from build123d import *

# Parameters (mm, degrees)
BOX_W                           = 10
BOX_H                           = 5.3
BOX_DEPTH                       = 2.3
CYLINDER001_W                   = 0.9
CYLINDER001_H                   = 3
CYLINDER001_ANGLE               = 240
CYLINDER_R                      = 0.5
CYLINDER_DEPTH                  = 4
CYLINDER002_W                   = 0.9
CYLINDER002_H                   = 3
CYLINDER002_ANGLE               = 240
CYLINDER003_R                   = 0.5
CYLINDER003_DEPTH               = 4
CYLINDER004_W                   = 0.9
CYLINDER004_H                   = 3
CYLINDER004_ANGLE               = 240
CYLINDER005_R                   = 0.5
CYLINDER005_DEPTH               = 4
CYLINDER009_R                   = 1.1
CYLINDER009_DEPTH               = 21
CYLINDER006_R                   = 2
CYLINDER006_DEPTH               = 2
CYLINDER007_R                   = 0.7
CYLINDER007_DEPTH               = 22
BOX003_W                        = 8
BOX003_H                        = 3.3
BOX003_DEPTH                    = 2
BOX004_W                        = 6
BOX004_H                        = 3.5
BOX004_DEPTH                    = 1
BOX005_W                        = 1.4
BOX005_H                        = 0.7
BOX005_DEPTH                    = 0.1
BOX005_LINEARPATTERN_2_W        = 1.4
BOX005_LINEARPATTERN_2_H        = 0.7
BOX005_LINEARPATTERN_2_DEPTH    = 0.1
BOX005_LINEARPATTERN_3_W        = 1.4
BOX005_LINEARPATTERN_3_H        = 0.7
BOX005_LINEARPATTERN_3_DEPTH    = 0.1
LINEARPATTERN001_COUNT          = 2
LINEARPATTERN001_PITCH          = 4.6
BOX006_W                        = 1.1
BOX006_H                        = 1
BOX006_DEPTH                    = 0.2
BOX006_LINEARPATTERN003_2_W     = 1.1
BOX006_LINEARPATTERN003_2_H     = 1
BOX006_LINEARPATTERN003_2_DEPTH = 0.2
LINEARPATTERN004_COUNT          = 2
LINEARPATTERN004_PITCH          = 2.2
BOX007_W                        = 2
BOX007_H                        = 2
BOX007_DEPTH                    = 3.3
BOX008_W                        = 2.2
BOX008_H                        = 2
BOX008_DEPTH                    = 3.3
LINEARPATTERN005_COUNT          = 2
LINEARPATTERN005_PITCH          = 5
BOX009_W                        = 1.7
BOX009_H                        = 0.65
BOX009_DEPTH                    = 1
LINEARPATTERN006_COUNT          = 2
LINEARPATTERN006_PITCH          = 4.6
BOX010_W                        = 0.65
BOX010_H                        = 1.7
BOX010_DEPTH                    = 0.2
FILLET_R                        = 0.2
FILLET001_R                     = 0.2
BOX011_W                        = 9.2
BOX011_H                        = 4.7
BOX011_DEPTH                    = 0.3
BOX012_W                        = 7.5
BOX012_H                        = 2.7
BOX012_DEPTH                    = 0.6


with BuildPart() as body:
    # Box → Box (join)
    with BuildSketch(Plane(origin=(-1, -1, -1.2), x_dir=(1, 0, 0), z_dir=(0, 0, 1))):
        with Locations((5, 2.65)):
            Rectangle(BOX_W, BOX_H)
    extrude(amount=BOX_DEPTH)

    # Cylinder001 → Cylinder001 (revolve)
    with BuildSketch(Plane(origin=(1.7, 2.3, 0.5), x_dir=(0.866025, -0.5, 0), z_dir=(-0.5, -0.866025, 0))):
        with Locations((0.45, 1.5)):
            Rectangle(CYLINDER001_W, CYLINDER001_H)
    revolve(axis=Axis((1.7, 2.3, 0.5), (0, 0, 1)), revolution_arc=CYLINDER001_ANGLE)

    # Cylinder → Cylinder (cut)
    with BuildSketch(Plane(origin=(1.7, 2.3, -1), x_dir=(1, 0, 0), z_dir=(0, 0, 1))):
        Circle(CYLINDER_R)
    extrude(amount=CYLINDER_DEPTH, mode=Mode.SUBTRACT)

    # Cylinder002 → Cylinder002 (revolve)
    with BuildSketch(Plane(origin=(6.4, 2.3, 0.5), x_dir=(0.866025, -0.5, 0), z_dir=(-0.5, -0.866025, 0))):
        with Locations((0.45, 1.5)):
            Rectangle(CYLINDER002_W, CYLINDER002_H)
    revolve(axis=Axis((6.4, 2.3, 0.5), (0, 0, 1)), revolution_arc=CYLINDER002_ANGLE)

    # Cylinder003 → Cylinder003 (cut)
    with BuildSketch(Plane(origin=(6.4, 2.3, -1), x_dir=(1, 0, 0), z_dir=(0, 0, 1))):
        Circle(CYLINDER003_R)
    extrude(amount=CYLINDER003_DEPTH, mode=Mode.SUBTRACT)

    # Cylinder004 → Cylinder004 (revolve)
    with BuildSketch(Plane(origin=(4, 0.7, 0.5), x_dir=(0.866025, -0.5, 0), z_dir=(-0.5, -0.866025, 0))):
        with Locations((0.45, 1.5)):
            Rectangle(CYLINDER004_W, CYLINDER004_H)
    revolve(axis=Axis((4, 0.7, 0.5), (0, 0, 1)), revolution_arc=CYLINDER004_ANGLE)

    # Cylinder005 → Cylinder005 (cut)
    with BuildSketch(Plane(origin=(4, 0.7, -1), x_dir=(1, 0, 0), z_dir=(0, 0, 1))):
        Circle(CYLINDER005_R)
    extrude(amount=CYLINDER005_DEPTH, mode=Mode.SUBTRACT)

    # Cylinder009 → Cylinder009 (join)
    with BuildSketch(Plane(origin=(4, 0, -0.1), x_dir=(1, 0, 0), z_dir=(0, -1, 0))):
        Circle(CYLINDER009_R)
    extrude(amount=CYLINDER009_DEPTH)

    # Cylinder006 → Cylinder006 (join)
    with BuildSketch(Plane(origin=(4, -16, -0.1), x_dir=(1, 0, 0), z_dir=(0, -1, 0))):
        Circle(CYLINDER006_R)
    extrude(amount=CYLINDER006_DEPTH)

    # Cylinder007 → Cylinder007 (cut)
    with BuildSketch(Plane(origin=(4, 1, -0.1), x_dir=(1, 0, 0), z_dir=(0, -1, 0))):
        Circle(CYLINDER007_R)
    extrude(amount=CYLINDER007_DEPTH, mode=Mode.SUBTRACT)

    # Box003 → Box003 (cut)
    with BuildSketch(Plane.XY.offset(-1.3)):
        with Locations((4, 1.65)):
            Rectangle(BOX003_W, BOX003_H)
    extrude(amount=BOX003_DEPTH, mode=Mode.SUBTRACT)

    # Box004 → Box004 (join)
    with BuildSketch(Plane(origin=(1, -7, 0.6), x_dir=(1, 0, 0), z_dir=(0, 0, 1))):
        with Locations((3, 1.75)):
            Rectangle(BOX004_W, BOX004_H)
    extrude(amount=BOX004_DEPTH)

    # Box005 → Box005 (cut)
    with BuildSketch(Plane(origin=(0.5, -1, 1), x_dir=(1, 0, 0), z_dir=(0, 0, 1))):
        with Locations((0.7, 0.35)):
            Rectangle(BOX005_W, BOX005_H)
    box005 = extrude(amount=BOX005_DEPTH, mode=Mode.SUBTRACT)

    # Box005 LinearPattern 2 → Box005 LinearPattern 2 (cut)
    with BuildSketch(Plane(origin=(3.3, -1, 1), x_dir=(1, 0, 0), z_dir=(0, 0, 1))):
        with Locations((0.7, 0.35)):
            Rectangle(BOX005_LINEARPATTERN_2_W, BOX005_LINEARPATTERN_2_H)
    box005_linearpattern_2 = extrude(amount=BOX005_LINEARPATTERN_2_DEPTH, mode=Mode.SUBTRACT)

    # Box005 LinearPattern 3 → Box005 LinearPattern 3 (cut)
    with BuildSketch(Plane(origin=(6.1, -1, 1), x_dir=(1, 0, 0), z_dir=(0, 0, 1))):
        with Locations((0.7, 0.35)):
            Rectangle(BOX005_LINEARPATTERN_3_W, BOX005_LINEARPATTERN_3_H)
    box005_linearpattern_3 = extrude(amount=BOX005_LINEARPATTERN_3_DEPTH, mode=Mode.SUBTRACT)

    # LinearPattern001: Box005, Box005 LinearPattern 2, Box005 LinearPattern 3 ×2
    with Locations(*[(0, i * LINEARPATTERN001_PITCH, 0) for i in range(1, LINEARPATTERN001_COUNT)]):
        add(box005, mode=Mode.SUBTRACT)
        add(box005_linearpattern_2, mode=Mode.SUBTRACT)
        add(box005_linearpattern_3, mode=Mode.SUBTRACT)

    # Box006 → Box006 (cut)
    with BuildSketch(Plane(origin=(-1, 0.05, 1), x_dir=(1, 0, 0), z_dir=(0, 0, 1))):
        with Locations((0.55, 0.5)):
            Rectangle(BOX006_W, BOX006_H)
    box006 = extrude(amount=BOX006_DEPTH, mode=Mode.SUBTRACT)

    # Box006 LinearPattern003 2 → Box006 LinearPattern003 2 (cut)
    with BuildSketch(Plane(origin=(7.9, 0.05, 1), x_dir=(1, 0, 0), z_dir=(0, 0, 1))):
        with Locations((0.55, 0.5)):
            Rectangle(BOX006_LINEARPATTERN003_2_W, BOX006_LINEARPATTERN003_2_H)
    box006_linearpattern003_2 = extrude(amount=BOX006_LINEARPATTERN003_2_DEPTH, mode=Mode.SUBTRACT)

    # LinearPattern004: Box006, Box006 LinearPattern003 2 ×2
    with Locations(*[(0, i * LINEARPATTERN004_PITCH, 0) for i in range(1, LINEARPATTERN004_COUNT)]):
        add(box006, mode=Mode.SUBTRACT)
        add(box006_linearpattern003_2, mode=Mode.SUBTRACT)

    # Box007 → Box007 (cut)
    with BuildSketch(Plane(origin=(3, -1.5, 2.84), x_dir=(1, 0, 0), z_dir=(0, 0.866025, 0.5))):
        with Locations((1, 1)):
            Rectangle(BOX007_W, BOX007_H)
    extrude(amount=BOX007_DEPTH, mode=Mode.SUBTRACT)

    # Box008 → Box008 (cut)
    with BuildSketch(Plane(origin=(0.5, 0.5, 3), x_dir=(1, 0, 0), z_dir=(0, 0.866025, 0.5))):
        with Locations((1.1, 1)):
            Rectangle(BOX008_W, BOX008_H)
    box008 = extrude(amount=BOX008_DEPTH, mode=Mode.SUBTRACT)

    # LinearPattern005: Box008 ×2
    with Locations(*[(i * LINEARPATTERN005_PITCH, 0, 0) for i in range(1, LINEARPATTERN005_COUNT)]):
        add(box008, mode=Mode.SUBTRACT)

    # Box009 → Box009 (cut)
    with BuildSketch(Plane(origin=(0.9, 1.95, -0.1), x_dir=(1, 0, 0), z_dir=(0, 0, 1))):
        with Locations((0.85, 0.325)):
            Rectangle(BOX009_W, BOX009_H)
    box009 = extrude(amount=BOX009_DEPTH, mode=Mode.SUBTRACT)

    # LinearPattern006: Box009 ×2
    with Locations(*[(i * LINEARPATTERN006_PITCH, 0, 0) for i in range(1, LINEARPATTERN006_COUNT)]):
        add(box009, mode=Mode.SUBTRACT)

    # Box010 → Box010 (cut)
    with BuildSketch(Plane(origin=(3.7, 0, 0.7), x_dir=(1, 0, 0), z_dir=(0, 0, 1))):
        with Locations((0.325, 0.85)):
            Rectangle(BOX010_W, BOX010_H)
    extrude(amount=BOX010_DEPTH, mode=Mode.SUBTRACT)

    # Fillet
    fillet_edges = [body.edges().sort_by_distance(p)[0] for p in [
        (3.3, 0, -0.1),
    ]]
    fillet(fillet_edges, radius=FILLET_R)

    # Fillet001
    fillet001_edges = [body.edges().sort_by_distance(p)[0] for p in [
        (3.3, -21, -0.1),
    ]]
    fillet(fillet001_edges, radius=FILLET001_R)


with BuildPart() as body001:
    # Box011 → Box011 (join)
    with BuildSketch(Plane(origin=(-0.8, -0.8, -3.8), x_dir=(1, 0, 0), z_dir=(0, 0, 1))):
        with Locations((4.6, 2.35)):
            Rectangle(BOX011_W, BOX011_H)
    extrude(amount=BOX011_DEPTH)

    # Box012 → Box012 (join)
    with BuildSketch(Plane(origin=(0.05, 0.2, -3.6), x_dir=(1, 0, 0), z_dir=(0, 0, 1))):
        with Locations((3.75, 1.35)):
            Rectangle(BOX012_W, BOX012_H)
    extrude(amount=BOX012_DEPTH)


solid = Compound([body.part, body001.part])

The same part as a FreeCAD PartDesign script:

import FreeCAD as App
import Part
import Sketcher
Q = App.Units.Quantity


def edges_at(feature, points):
    """Names of the edges that pass closest to the given points."""
    edges = feature.Shape.Edges
    near = lambda p: min(range(len(edges)), key=lambda i: edges[i].distToShape(Part.Vertex(*p))[0])
    return sorted({f"Edge{near(p) + 1}" for p in points})

doc = App.newDocument("Part")
body = doc.addObject("PartDesign::Body", "Body")

sketch1 = doc.addObject("Sketcher::SketchObject", "Sketch")
body.addObject(sketch1)
sketch1.AttachmentSupport = (doc.XY_Plane, [""])
sketch1.MapMode = "FlatFace"
sketch1.AttachmentOffset = App.Placement(App.Vector(0, 0, -1.2), App.Rotation())
sketch1.addGeometry(Part.LineSegment(App.Vector(-1, 4, 0), App.Vector(-1, -1, 0)), False)
sketch1.addGeometry(Part.LineSegment(App.Vector(-1, -1, 0), App.Vector(9, -1, 0)), False)
sketch1.addGeometry(Part.LineSegment(App.Vector(9, -1, 0), App.Vector(9, 4, 0)), False)
sketch1.addGeometry(Part.LineSegment(App.Vector(9, 4, 0), App.Vector(-1, 4, 0)), False)
sketch1.addConstraint(Sketcher.Constraint("Coincident", 0, 2, 1, 1))
sketch1.addConstraint(Sketcher.Constraint("Coincident", 1, 2, 2, 1))
sketch1.addConstraint(Sketcher.Constraint("Coincident", 2, 2, 3, 1))
sketch1.addConstraint(Sketcher.Constraint("Coincident", 3, 2, 0, 1))
sketch1.addConstraint(Sketcher.Constraint("Vertical", 0))
sketch1.addConstraint(Sketcher.Constraint("Horizontal", 1))
sketch1.addConstraint(Sketcher.Constraint("Vertical", 2))
sketch1.addConstraint(Sketcher.Constraint("Horizontal", 3))
sketch1.addConstraint(Sketcher.Constraint("DistanceX", 1, 1, 1, 2, Q("10 mm")))
sketch1.addConstraint(Sketcher.Constraint("DistanceY", 0, 2, 0, 1, Q("5.3 mm")))
sketch1.addConstraint(Sketcher.Constraint("DistanceX", 0, 2, -1, 1, Q("1 mm")))
sketch1.addConstraint(Sketcher.Constraint("DistanceY", 0, 2, -1, 1, Q("1 mm")))
pad1 = doc.addObject("PartDesign::Pad", "Pad")
body.addObject(pad1)
pad1.Profile = sketch1
pad1.Length = 2.3

sketch2 = doc.addObject("Sketcher::SketchObject", "Sketch001")
body.addObject(sketch2)
sketch2.Placement = App.Placement(App.Vector(1.7, 2.3, 0.5), App.Rotation(App.Vector(0.866025303, -0.500000175, 0), App.Vector(0, 0, 1), App.Vector(-0.500000175, -0.866025303, 0), "ZXY"))
sketch2.addGeometry(Part.LineSegment(App.Vector(0, 3, 0), App.Vector(0, 0, 0)), False)
sketch2.addGeometry(Part.LineSegment(App.Vector(0, 0, 0), App.Vector(0.9, 0, 0)), False)
sketch2.addGeometry(Part.LineSegment(App.Vector(0.9, 0, 0), App.Vector(0.9, 3, 0)), False)
sketch2.addGeometry(Part.LineSegment(App.Vector(0.9, 3, 0), App.Vector(0, 3, 0)), False)
sketch2.addConstraint(Sketcher.Constraint("Coincident", 0, 2, 1, 1))
sketch2.addConstraint(Sketcher.Constraint("Coincident", 1, 2, 2, 1))
sketch2.addConstraint(Sketcher.Constraint("Coincident", 2, 2, 3, 1))
sketch2.addConstraint(Sketcher.Constraint("Coincident", 3, 2, 0, 1))
sketch2.addConstraint(Sketcher.Constraint("Vertical", 0))
sketch2.addConstraint(Sketcher.Constraint("Horizontal", 1))
sketch2.addConstraint(Sketcher.Constraint("Vertical", 2))
sketch2.addConstraint(Sketcher.Constraint("Horizontal", 3))
sketch2.addConstraint(Sketcher.Constraint("Coincident", 0, 2, -1, 1))
sketch2.addConstraint(Sketcher.Constraint("DistanceY", 0, 2, 0, 1, Q("3 mm")))
sketch2.addConstraint(Sketcher.Constraint("DistanceX", 1, 1, 1, 2, Q("0.9 mm")))
revolution = doc.addObject("PartDesign::Revolution", "Revolution")
body.addObject(revolution)
revolution.Profile = sketch2
revolution.ReferenceAxis = (sketch2, ["V_Axis"])
revolution.Angle = 240

sketch3 = doc.addObject("Sketcher::SketchObject", "Sketch002")
body.addObject(sketch3)
sketch3.AttachmentSupport = (doc.XY_Plane, [""])
sketch3.MapMode = "FlatFace"
sketch3.AttachmentOffset = App.Placement(App.Vector(0, 0, -1), App.Rotation())
sketch3.addGeometry(Part.Circle(App.Vector(1.7, 2.3, 0), App.Vector(0, 0, 1), 0.5), False)
sketch3.addConstraint(Sketcher.Constraint("Diameter", 0, Q("1 mm")))
sketch3.addConstraint(Sketcher.Constraint("DistanceX", -1, 1, 0, 3, Q("1.7 mm")))
sketch3.addConstraint(Sketcher.Constraint("DistanceY", -1, 1, 0, 3, Q("2.3 mm")))
pocket1 = doc.addObject("PartDesign::Pocket", "Pocket")
body.addObject(pocket1)
pocket1.Profile = sketch3
pocket1.Length = 4
pocket1.Reversed = True

sketch4 = doc.addObject("Sketcher::SketchObject", "Sketch003")
body.addObject(sketch4)
sketch4.Placement = App.Placement(App.Vector(6.4, 2.3, 0.5), App.Rotation(App.Vector(0.866025303, -0.500000175, 0), App.Vector(0, 0, 1), App.Vector(-0.500000175, -0.866025303, 0), "ZXY"))
sketch4.addGeometry(Part.LineSegment(App.Vector(0, 3, 0), App.Vector(0, 0, 0)), False)
sketch4.addGeometry(Part.LineSegment(App.Vector(0, 0, 0), App.Vector(0.9, 0, 0)), False)
sketch4.addGeometry(Part.LineSegment(App.Vector(0.9, 0, 0), App.Vector(0.9, 3, 0)), False)
sketch4.addGeometry(Part.LineSegment(App.Vector(0.9, 3, 0), App.Vector(0, 3, 0)), False)
sketch4.addConstraint(Sketcher.Constraint("Coincident", 0, 2, 1, 1))
sketch4.addConstraint(Sketcher.Constraint("Coincident", 1, 2, 2, 1))
sketch4.addConstraint(Sketcher.Constraint("Coincident", 2, 2, 3, 1))
sketch4.addConstraint(Sketcher.Constraint("Coincident", 3, 2, 0, 1))
sketch4.addConstraint(Sketcher.Constraint("Vertical", 0))
sketch4.addConstraint(Sketcher.Constraint("Horizontal", 1))
sketch4.addConstraint(Sketcher.Constraint("Vertical", 2))
sketch4.addConstraint(Sketcher.Constraint("Horizontal", 3))
sketch4.addConstraint(Sketcher.Constraint("Coincident", 0, 2, -1, 1))
sketch4.addConstraint(Sketcher.Constraint("DistanceY", 0, 2, 0, 1, Q("3 mm")))
sketch4.addConstraint(Sketcher.Constraint("DistanceX", 1, 1, 1, 2, Q("0.9 mm")))
revolution2 = doc.addObject("PartDesign::Revolution", "Revolution001")
body.addObject(revolution2)
revolution2.Profile = sketch4
revolution2.ReferenceAxis = (sketch4, ["V_Axis"])
revolution2.Angle = 240

sketch5 = doc.addObject("Sketcher::SketchObject", "Sketch004")
body.addObject(sketch5)
sketch5.AttachmentSupport = (doc.XY_Plane, [""])
sketch5.MapMode = "FlatFace"
sketch5.AttachmentOffset = App.Placement(App.Vector(0, 0, -1), App.Rotation())
sketch5.addGeometry(Part.Circle(App.Vector(6.4, 2.3, 0), App.Vector(0, 0, 1), 0.5), False)
sketch5.addConstraint(Sketcher.Constraint("Diameter", 0, Q("1 mm")))
sketch5.addConstraint(Sketcher.Constraint("DistanceX", -1, 1, 0, 3, Q("6.4 mm")))
sketch5.addConstraint(Sketcher.Constraint("DistanceY", -1, 1, 0, 3, Q("2.3 mm")))
pocket2 = doc.addObject("PartDesign::Pocket", "Pocket001")
body.addObject(pocket2)
pocket2.Profile = sketch5
pocket2.Length = 4
pocket2.Reversed = True

sketch6 = doc.addObject("Sketcher::SketchObject", "Sketch005")
body.addObject(sketch6)
sketch6.Placement = App.Placement(App.Vector(4, 0.7, 0.5), App.Rotation(App.Vector(0.866025303, -0.500000175, 0), App.Vector(0, 0, 1), App.Vector(-0.500000175, -0.866025303, 0), "ZXY"))
sketch6.addGeometry(Part.LineSegment(App.Vector(0, 3, 0), App.Vector(0, 0, 0)), False)
sketch6.addGeometry(Part.LineSegment(App.Vector(0, 0, 0), App.Vector(0.9, 0, 0)), False)
sketch6.addGeometry(Part.LineSegment(App.Vector(0.9, 0, 0), App.Vector(0.9, 3, 0)), False)
sketch6.addGeometry(Part.LineSegment(App.Vector(0.9, 3, 0), App.Vector(0, 3, 0)), False)
sketch6.addConstraint(Sketcher.Constraint("Coincident", 0, 2, 1, 1))
sketch6.addConstraint(Sketcher.Constraint("Coincident", 1, 2, 2, 1))
sketch6.addConstraint(Sketcher.Constraint("Coincident", 2, 2, 3, 1))
sketch6.addConstraint(Sketcher.Constraint("Coincident", 3, 2, 0, 1))
sketch6.addConstraint(Sketcher.Constraint("Vertical", 0))
sketch6.addConstraint(Sketcher.Constraint("Horizontal", 1))
sketch6.addConstraint(Sketcher.Constraint("Vertical", 2))
sketch6.addConstraint(Sketcher.Constraint("Horizontal", 3))
sketch6.addConstraint(Sketcher.Constraint("Coincident", 0, 2, -1, 1))
sketch6.addConstraint(Sketcher.Constraint("DistanceY", 0, 2, 0, 1, Q("3 mm")))
sketch6.addConstraint(Sketcher.Constraint("DistanceX", 1, 1, 1, 2, Q("0.9 mm")))
revolution3 = doc.addObject("PartDesign::Revolution", "Revolution002")
body.addObject(revolution3)
revolution3.Profile = sketch6
revolution3.ReferenceAxis = (sketch6, ["V_Axis"])
revolution3.Angle = 240

sketch7 = doc.addObject("Sketcher::SketchObject", "Sketch006")
body.addObject(sketch7)
sketch7.AttachmentSupport = (doc.XY_Plane, [""])
sketch7.MapMode = "FlatFace"
sketch7.AttachmentOffset = App.Placement(App.Vector(0, 0, -1), App.Rotation())
sketch7.addGeometry(Part.Circle(App.Vector(4, 0.7, 0), App.Vector(0, 0, 1), 0.5), False)
sketch7.addConstraint(Sketcher.Constraint("Diameter", 0, Q("1 mm")))
sketch7.addConstraint(Sketcher.Constraint("DistanceX", -1, 1, 0, 3, Q("4 mm")))
sketch7.addConstraint(Sketcher.Constraint("DistanceY", -1, 1, 0, 3, Q("0.7 mm")))
pocket3 = doc.addObject("PartDesign::Pocket", "Pocket002")
body.addObject(pocket3)
pocket3.Profile = sketch7
pocket3.Length = 4
pocket3.Reversed = True

sketch8 = doc.addObject("Sketcher::SketchObject", "Sketch007")
body.addObject(sketch8)
sketch8.AttachmentSupport = (doc.XZ_Plane, [""])
sketch8.MapMode = "FlatFace"
sketch8.addGeometry(Part.Circle(App.Vector(4, -0.1, 0), App.Vector(0, 0, 1), 1.1), False)
sketch8.addConstraint(Sketcher.Constraint("Diameter", 0, Q("2.2 mm")))
sketch8.addConstraint(Sketcher.Constraint("DistanceX", -1, 1, 0, 3, Q("4 mm")))
sketch8.addConstraint(Sketcher.Constraint("DistanceY", 0, 3, -1, 1, Q("0.1 mm")))
pad2 = doc.addObject("PartDesign::Pad", "Pad001")
body.addObject(pad2)
pad2.Profile = sketch8
pad2.Length = 21

sketch9 = doc.addObject("Sketcher::SketchObject", "Sketch008")
body.addObject(sketch9)
sketch9.AttachmentSupport = (doc.XZ_Plane, [""])
sketch9.MapMode = "FlatFace"
sketch9.AttachmentOffset = App.Placement(App.Vector(0, 0, 16), App.Rotation())
sketch9.addGeometry(Part.Circle(App.Vector(4, -0.1, 0), App.Vector(0, 0, 1), 2), False)
sketch9.addConstraint(Sketcher.Constraint("Diameter", 0, Q("4 mm")))
sketch9.addConstraint(Sketcher.Constraint("DistanceX", -1, 1, 0, 3, Q("4 mm")))
sketch9.addConstraint(Sketcher.Constraint("DistanceY", 0, 3, -1, 1, Q("0.1 mm")))
pad3 = doc.addObject("PartDesign::Pad", "Pad002")
body.addObject(pad3)
pad3.Profile = sketch9
pad3.Length = 2

sketch10 = doc.addObject("Sketcher::SketchObject", "Sketch009")
body.addObject(sketch10)
sketch10.AttachmentSupport = (doc.XZ_Plane, [""])
sketch10.MapMode = "FlatFace"
sketch10.AttachmentOffset = App.Placement(App.Vector(0, 0, -1), App.Rotation())
sketch10.addGeometry(Part.Circle(App.Vector(4, -0.1, 0), App.Vector(0, 0, 1), 0.7), False)
sketch10.addConstraint(Sketcher.Constraint("Diameter", 0, Q("1.4 mm")))
sketch10.addConstraint(Sketcher.Constraint("DistanceX", -1, 1, 0, 3, Q("4 mm")))
sketch10.addConstraint(Sketcher.Constraint("DistanceY", 0, 3, -1, 1, Q("0.1 mm")))
pocket4 = doc.addObject("PartDesign::Pocket", "Pocket003")
body.addObject(pocket4)
pocket4.Profile = sketch10
pocket4.Length = 22
pocket4.Reversed = True

sketch11 = doc.addObject("Sketcher::SketchObject", "Sketch010")
body.addObject(sketch11)
sketch11.AttachmentSupport = (doc.XY_Plane, [""])
sketch11.MapMode = "FlatFace"
sketch11.AttachmentOffset = App.Placement(App.Vector(0, 0, -1.3), App.Rotation())
sketch11.addGeometry(Part.LineSegment(App.Vector(0, 3.3, 0), App.Vector(0, 0, 0)), False)
sketch11.addGeometry(Part.LineSegment(App.Vector(0, 0, 0), App.Vector(8, 0, 0)), False)
sketch11.addGeometry(Part.LineSegment(App.Vector(8, 0, 0), App.Vector(8, 3.3, 0)), False)
sketch11.addGeometry(Part.LineSegment(App.Vector(8, 3.3, 0), App.Vector(0, 3.3, 0)), False)
sketch11.addConstraint(Sketcher.Constraint("Coincident", 0, 2, 1, 1))
sketch11.addConstraint(Sketcher.Constraint("Coincident", 1, 2, 2, 1))
sketch11.addConstraint(Sketcher.Constraint("Coincident", 2, 2, 3, 1))
sketch11.addConstraint(Sketcher.Constraint("Coincident", 3, 2, 0, 1))
sketch11.addConstraint(Sketcher.Constraint("Vertical", 0))
sketch11.addConstraint(Sketcher.Constraint("Horizontal", 1))
sketch11.addConstraint(Sketcher.Constraint("Vertical", 2))
sketch11.addConstraint(Sketcher.Constraint("Horizontal", 3))
sketch11.addConstraint(Sketcher.Constraint("Coincident", 0, 2, -1, 1))
sketch11.addConstraint(Sketcher.Constraint("DistanceX", 1, 1, 1, 2, Q("8 mm")))
sketch11.addConstraint(Sketcher.Constraint("DistanceY", 0, 2, 0, 1, Q("3.3 mm")))
pocket5 = doc.addObject("PartDesign::Pocket", "Pocket004")
body.addObject(pocket5)
pocket5.Profile = sketch11
pocket5.Length = 2
pocket5.Reversed = True

sketch12 = doc.addObject("Sketcher::SketchObject", "Sketch011")
body.addObject(sketch12)
sketch12.AttachmentSupport = (doc.XY_Plane, [""])
sketch12.MapMode = "FlatFace"
sketch12.AttachmentOffset = App.Placement(App.Vector(0, 0, 0.6), App.Rotation())
sketch12.addGeometry(Part.LineSegment(App.Vector(1, -3.5, 0), App.Vector(1, -7, 0)), False)
sketch12.addGeometry(Part.LineSegment(App.Vector(1, -7, 0), App.Vector(7, -7, 0)), False)
sketch12.addGeometry(Part.LineSegment(App.Vector(7, -7, 0), App.Vector(7, -3.5, 0)), False)
sketch12.addGeometry(Part.LineSegment(App.Vector(7, -3.5, 0), App.Vector(1, -3.5, 0)), False)
sketch12.addConstraint(Sketcher.Constraint("Coincident", 0, 2, 1, 1))
sketch12.addConstraint(Sketcher.Constraint("Coincident", 1, 2, 2, 1))
sketch12.addConstraint(Sketcher.Constraint("Coincident", 2, 2, 3, 1))
sketch12.addConstraint(Sketcher.Constraint("Coincident", 3, 2, 0, 1))
sketch12.addConstraint(Sketcher.Constraint("Vertical", 0))
sketch12.addConstraint(Sketcher.Constraint("Horizontal", 1))
sketch12.addConstraint(Sketcher.Constraint("Vertical", 2))
sketch12.addConstraint(Sketcher.Constraint("Horizontal", 3))
sketch12.addConstraint(Sketcher.Constraint("DistanceX", 1, 1, 1, 2, Q("6 mm")))
sketch12.addConstraint(Sketcher.Constraint("DistanceY", 0, 2, 0, 1, Q("3.5 mm")))
sketch12.addConstraint(Sketcher.Constraint("DistanceX", -1, 1, 0, 2, Q("1 mm")))
sketch12.addConstraint(Sketcher.Constraint("DistanceY", 0, 2, -1, 1, Q("7 mm")))
pad4 = doc.addObject("PartDesign::Pad", "Pad003")
body.addObject(pad4)
pad4.Profile = sketch12
pad4.Length = 1

sketch13 = doc.addObject("Sketcher::SketchObject", "Sketch012")
body.addObject(sketch13)
sketch13.AttachmentSupport = (doc.XY_Plane, [""])
sketch13.MapMode = "FlatFace"
sketch13.AttachmentOffset = App.Placement(App.Vector(0, 0, 1), App.Rotation())
sketch13.addGeometry(Part.LineSegment(App.Vector(0.5, -0.3, 0), App.Vector(0.5, -1, 0)), False)
sketch13.addGeometry(Part.LineSegment(App.Vector(0.5, -1, 0), App.Vector(1.9, -1, 0)), False)
sketch13.addGeometry(Part.LineSegment(App.Vector(1.9, -1, 0), App.Vector(1.9, -0.3, 0)), False)
sketch13.addGeometry(Part.LineSegment(App.Vector(1.9, -0.3, 0), App.Vector(0.5, -0.3, 0)), False)
sketch13.addConstraint(Sketcher.Constraint("Coincident", 0, 2, 1, 1))
sketch13.addConstraint(Sketcher.Constraint("Coincident", 1, 2, 2, 1))
sketch13.addConstraint(Sketcher.Constraint("Coincident", 2, 2, 3, 1))
sketch13.addConstraint(Sketcher.Constraint("Coincident", 3, 2, 0, 1))
sketch13.addConstraint(Sketcher.Constraint("Vertical", 0))
sketch13.addConstraint(Sketcher.Constraint("Horizontal", 1))
sketch13.addConstraint(Sketcher.Constraint("Vertical", 2))
sketch13.addConstraint(Sketcher.Constraint("Horizontal", 3))
sketch13.addConstraint(Sketcher.Constraint("DistanceX", 1, 1, 1, 2, Q("1.4 mm")))
sketch13.addConstraint(Sketcher.Constraint("DistanceY", 0, 2, 0, 1, Q("0.7 mm")))
sketch13.addConstraint(Sketcher.Constraint("DistanceY", 0, 2, -1, 1, Q("1 mm")))
sketch13.addConstraint(Sketcher.Constraint("DistanceX", -1, 1, 0, 2, Q("0.5 mm")))
pocket6 = doc.addObject("PartDesign::Pocket", "Pocket005")
body.addObject(pocket6)
pocket6.Profile = sketch13
pocket6.Length = 0.1
pocket6.Reversed = True

sketch14 = doc.addObject("Sketcher::SketchObject", "Sketch013")
body.addObject(sketch14)
sketch14.AttachmentSupport = (doc.XY_Plane, [""])
sketch14.MapMode = "FlatFace"
sketch14.AttachmentOffset = App.Placement(App.Vector(0, 0, 1), App.Rotation())
sketch14.addGeometry(Part.LineSegment(App.Vector(3.3, -0.3, 0), App.Vector(3.3, -1, 0)), False)
sketch14.addGeometry(Part.LineSegment(App.Vector(3.3, -1, 0), App.Vector(4.7, -1, 0)), False)
sketch14.addGeometry(Part.LineSegment(App.Vector(4.7, -1, 0), App.Vector(4.7, -0.3, 0)), False)
sketch14.addGeometry(Part.LineSegment(App.Vector(4.7, -0.3, 0), App.Vector(3.3, -0.3, 0)), False)
sketch14.addConstraint(Sketcher.Constraint("Coincident", 0, 2, 1, 1))
sketch14.addConstraint(Sketcher.Constraint("Coincident", 1, 2, 2, 1))
sketch14.addConstraint(Sketcher.Constraint("Coincident", 2, 2, 3, 1))
sketch14.addConstraint(Sketcher.Constraint("Coincident", 3, 2, 0, 1))
sketch14.addConstraint(Sketcher.Constraint("Vertical", 0))
sketch14.addConstraint(Sketcher.Constraint("Horizontal", 1))
sketch14.addConstraint(Sketcher.Constraint("Vertical", 2))
sketch14.addConstraint(Sketcher.Constraint("Horizontal", 3))
sketch14.addConstraint(Sketcher.Constraint("DistanceX", 1, 1, 1, 2, Q("1.4 mm")))
sketch14.addConstraint(Sketcher.Constraint("DistanceY", 0, 2, 0, 1, Q("0.7 mm")))
sketch14.addConstraint(Sketcher.Constraint("DistanceY", 0, 2, -1, 1, Q("1 mm")))
sketch14.addConstraint(Sketcher.Constraint("DistanceX", -1, 1, 0, 2, Q("3.3 mm")))
pocket7 = doc.addObject("PartDesign::Pocket", "Pocket006")
body.addObject(pocket7)
pocket7.Profile = sketch14
pocket7.Length = 0.1
pocket7.Reversed = True

sketch15 = doc.addObject("Sketcher::SketchObject", "Sketch014")
body.addObject(sketch15)
sketch15.AttachmentSupport = (doc.XY_Plane, [""])
sketch15.MapMode = "FlatFace"
sketch15.AttachmentOffset = App.Placement(App.Vector(0, 0, 1), App.Rotation())
sketch15.addGeometry(Part.LineSegment(App.Vector(6.1, -0.3, 0), App.Vector(6.1, -1, 0)), False)
sketch15.addGeometry(Part.LineSegment(App.Vector(6.1, -1, 0), App.Vector(7.5, -1, 0)), False)
sketch15.addGeometry(Part.LineSegment(App.Vector(7.5, -1, 0), App.Vector(7.5, -0.3, 0)), False)
sketch15.addGeometry(Part.LineSegment(App.Vector(7.5, -0.3, 0), App.Vector(6.1, -0.3, 0)), False)
sketch15.addConstraint(Sketcher.Constraint("Coincident", 0, 2, 1, 1))
sketch15.addConstraint(Sketcher.Constraint("Coincident", 1, 2, 2, 1))
sketch15.addConstraint(Sketcher.Constraint("Coincident", 2, 2, 3, 1))
sketch15.addConstraint(Sketcher.Constraint("Coincident", 3, 2, 0, 1))
sketch15.addConstraint(Sketcher.Constraint("Vertical", 0))
sketch15.addConstraint(Sketcher.Constraint("Horizontal", 1))
sketch15.addConstraint(Sketcher.Constraint("Vertical", 2))
sketch15.addConstraint(Sketcher.Constraint("Horizontal", 3))
sketch15.addConstraint(Sketcher.Constraint("DistanceX", 1, 1, 1, 2, Q("1.4 mm")))
sketch15.addConstraint(Sketcher.Constraint("DistanceY", 0, 2, 0, 1, Q("0.7 mm")))
sketch15.addConstraint(Sketcher.Constraint("DistanceY", 0, 2, -1, 1, Q("1 mm")))
sketch15.addConstraint(Sketcher.Constraint("DistanceX", -1, 1, 0, 2, Q("6.1 mm")))
pocket8 = doc.addObject("PartDesign::Pocket", "Pocket007")
body.addObject(pocket8)
pocket8.Profile = sketch15
pocket8.Length = 0.1
pocket8.Reversed = True
doc.recompute()

linearpattern = doc.addObject("PartDesign::LinearPattern", "LinearPattern")
body.addObject(linearpattern)
linearpattern.Originals = [pocket6, pocket7, pocket8]
linearpattern.Direction = (doc.Y_Axis, [""])
linearpattern.Mode = "offset"
linearpattern.Offset = 4.6
linearpattern.Occurrences = 2
body.Tip = linearpattern

sketch16 = doc.addObject("Sketcher::SketchObject", "Sketch015")
body.addObject(sketch16)
sketch16.AttachmentSupport = (doc.XY_Plane, [""])
sketch16.MapMode = "FlatFace"
sketch16.AttachmentOffset = App.Placement(App.Vector(0, 0, 1), App.Rotation())
sketch16.addGeometry(Part.LineSegment(App.Vector(-1, 1.1, 0), App.Vector(-1, 0.1, 0)), False)
sketch16.addGeometry(Part.LineSegment(App.Vector(-1, 0.1, 0), App.Vector(0.1, 0.1, 0)), False)
sketch16.addGeometry(Part.LineSegment(App.Vector(0.1, 0.1, 0), App.Vector(0.1, 1.1, 0)), False)
sketch16.addGeometry(Part.LineSegment(App.Vector(0.1, 1.1, 0), App.Vector(-1, 1.1, 0)), False)
sketch16.addConstraint(Sketcher.Constraint("Coincident", 0, 2, 1, 1))
sketch16.addConstraint(Sketcher.Constraint("Coincident", 1, 2, 2, 1))
sketch16.addConstraint(Sketcher.Constraint("Coincident", 2, 2, 3, 1))
sketch16.addConstraint(Sketcher.Constraint("Coincident", 3, 2, 0, 1))
sketch16.addConstraint(Sketcher.Constraint("Vertical", 0))
sketch16.addConstraint(Sketcher.Constraint("Horizontal", 1))
sketch16.addConstraint(Sketcher.Constraint("Vertical", 2))
sketch16.addConstraint(Sketcher.Constraint("Horizontal", 3))
sketch16.addConstraint(Sketcher.Constraint("DistanceY", 0, 2, 0, 1, Q("1 mm")))
sketch16.addConstraint(Sketcher.Constraint("DistanceX", 1, 1, 1, 2, Q("1.1 mm")))
sketch16.addConstraint(Sketcher.Constraint("DistanceX", 0, 2, -1, 1, Q("1 mm")))
sketch16.addConstraint(Sketcher.Constraint("DistanceY", -1, 1, 0, 2, Q("0.05 mm")))
pocket9 = doc.addObject("PartDesign::Pocket", "Pocket008")
body.addObject(pocket9)
pocket9.Profile = sketch16
pocket9.Length = 0.2
pocket9.Reversed = True

sketch17 = doc.addObject("Sketcher::SketchObject", "Sketch016")
body.addObject(sketch17)
sketch17.AttachmentSupport = (doc.XY_Plane, [""])
sketch17.MapMode = "FlatFace"
sketch17.AttachmentOffset = App.Placement(App.Vector(0, 0, 1), App.Rotation())
sketch17.addGeometry(Part.LineSegment(App.Vector(7.9, 1.1, 0), App.Vector(7.9, 0.1, 0)), False)
sketch17.addGeometry(Part.LineSegment(App.Vector(7.9, 0.1, 0), App.Vector(9, 0.1, 0)), False)
sketch17.addGeometry(Part.LineSegment(App.Vector(9, 0.1, 0), App.Vector(9, 1.1, 0)), False)
sketch17.addGeometry(Part.LineSegment(App.Vector(9, 1.1, 0), App.Vector(7.9, 1.1, 0)), False)
sketch17.addConstraint(Sketcher.Constraint("Coincident", 0, 2, 1, 1))
sketch17.addConstraint(Sketcher.Constraint("Coincident", 1, 2, 2, 1))
sketch17.addConstraint(Sketcher.Constraint("Coincident", 2, 2, 3, 1))
sketch17.addConstraint(Sketcher.Constraint("Coincident", 3, 2, 0, 1))
sketch17.addConstraint(Sketcher.Constraint("Vertical", 0))
sketch17.addConstraint(Sketcher.Constraint("Horizontal", 1))
sketch17.addConstraint(Sketcher.Constraint("Vertical", 2))
sketch17.addConstraint(Sketcher.Constraint("Horizontal", 3))
sketch17.addConstraint(Sketcher.Constraint("DistanceY", 0, 2, 0, 1, Q("1 mm")))
sketch17.addConstraint(Sketcher.Constraint("DistanceX", 1, 1, 1, 2, Q("1.1 mm")))
sketch17.addConstraint(Sketcher.Constraint("DistanceX", -1, 1, 1, 2, Q("9 mm")))
sketch17.addConstraint(Sketcher.Constraint("DistanceY", -1, 1, 0, 2, Q("0.05 mm")))
pocket10 = doc.addObject("PartDesign::Pocket", "Pocket009")
body.addObject(pocket10)
pocket10.Profile = sketch17
pocket10.Length = 0.2
pocket10.Reversed = True
doc.recompute()

linearpattern2 = doc.addObject("PartDesign::LinearPattern", "LinearPattern001")
body.addObject(linearpattern2)
linearpattern2.Originals = [pocket9, pocket10]
linearpattern2.Direction = (doc.Y_Axis, [""])
linearpattern2.Mode = "offset"
linearpattern2.Offset = 2.2
linearpattern2.Occurrences = 2
body.Tip = linearpattern2

sketch18 = doc.addObject("Sketcher::SketchObject", "Sketch017")
body.addObject(sketch18)
sketch18.Placement = App.Placement(App.Vector(3, -1.5, 2.84), App.Rotation(App.Vector(1, 0, 0), App.Vector(0, 0.500000175, -0.866025303), App.Vector(0, 0.866025303, 0.500000175), "ZXY"))
sketch18.addGeometry(Part.LineSegment(App.Vector(0, 2, 0), App.Vector(0, 0, 0)), False)
sketch18.addGeometry(Part.LineSegment(App.Vector(0, 0, 0), App.Vector(2, 0, 0)), False)
sketch18.addGeometry(Part.LineSegment(App.Vector(2, 0, 0), App.Vector(2, 2, 0)), False)
sketch18.addGeometry(Part.LineSegment(App.Vector(2, 2, 0), App.Vector(0, 2, 0)), False)
sketch18.addConstraint(Sketcher.Constraint("Coincident", 0, 2, 1, 1))
sketch18.addConstraint(Sketcher.Constraint("Coincident", 1, 2, 2, 1))
sketch18.addConstraint(Sketcher.Constraint("Coincident", 2, 2, 3, 1))
sketch18.addConstraint(Sketcher.Constraint("Coincident", 3, 2, 0, 1))
sketch18.addConstraint(Sketcher.Constraint("Vertical", 0))
sketch18.addConstraint(Sketcher.Constraint("Horizontal", 1))
sketch18.addConstraint(Sketcher.Constraint("Vertical", 2))
sketch18.addConstraint(Sketcher.Constraint("Horizontal", 3))
sketch18.addConstraint(Sketcher.Constraint("Coincident", 0, 2, -1, 1))
sketch18.addConstraint(Sketcher.Constraint("Equal", 3, 0))
sketch18.addConstraint(Sketcher.Constraint("DistanceX", 1, 1, 1, 2, Q("2 mm")))
pocket11 = doc.addObject("PartDesign::Pocket", "Pocket010")
body.addObject(pocket11)
pocket11.Profile = sketch18
pocket11.Length = 3.3
pocket11.Reversed = True

sketch19 = doc.addObject("Sketcher::SketchObject", "Sketch018")
body.addObject(sketch19)
sketch19.Placement = App.Placement(App.Vector(0.5, 0.5, 3), App.Rotation(App.Vector(1, 0, 0), App.Vector(0, 0.500000175, -0.866025303), App.Vector(0, 0.866025303, 0.500000175), "ZXY"))
sketch19.addGeometry(Part.LineSegment(App.Vector(0, 2, 0), App.Vector(0, 0, 0)), False)
sketch19.addGeometry(Part.LineSegment(App.Vector(0, 0, 0), App.Vector(2.2, 0, 0)), False)
sketch19.addGeometry(Part.LineSegment(App.Vector(2.2, 0, 0), App.Vector(2.2, 2, 0)), False)
sketch19.addGeometry(Part.LineSegment(App.Vector(2.2, 2, 0), App.Vector(0, 2, 0)), False)
sketch19.addConstraint(Sketcher.Constraint("Coincident", 0, 2, 1, 1))
sketch19.addConstraint(Sketcher.Constraint("Coincident", 1, 2, 2, 1))
sketch19.addConstraint(Sketcher.Constraint("Coincident", 2, 2, 3, 1))
sketch19.addConstraint(Sketcher.Constraint("Coincident", 3, 2, 0, 1))
sketch19.addConstraint(Sketcher.Constraint("Vertical", 0))
sketch19.addConstraint(Sketcher.Constraint("Horizontal", 1))
sketch19.addConstraint(Sketcher.Constraint("Vertical", 2))
sketch19.addConstraint(Sketcher.Constraint("Horizontal", 3))
sketch19.addConstraint(Sketcher.Constraint("Coincident", 0, 2, -1, 1))
sketch19.addConstraint(Sketcher.Constraint("DistanceY", 0, 2, 0, 1, Q("2 mm")))
sketch19.addConstraint(Sketcher.Constraint("DistanceX", 1, 1, 1, 2, Q("2.2 mm")))
pocket12 = doc.addObject("PartDesign::Pocket", "Pocket011")
body.addObject(pocket12)
pocket12.Profile = sketch19
pocket12.Length = 3.3
pocket12.Reversed = True
doc.recompute()

linearpattern3 = doc.addObject("PartDesign::LinearPattern", "LinearPattern002")
body.addObject(linearpattern3)
linearpattern3.Originals = [pocket12]
linearpattern3.Direction = (doc.X_Axis, [""])
linearpattern3.Mode = "offset"
linearpattern3.Offset = 5
linearpattern3.Occurrences = 2
body.Tip = linearpattern3

sketch20 = doc.addObject("Sketcher::SketchObject", "Sketch019")
body.addObject(sketch20)
sketch20.AttachmentSupport = (doc.XY_Plane, [""])
sketch20.MapMode = "FlatFace"
sketch20.AttachmentOffset = App.Placement(App.Vector(0, 0, -0.1), App.Rotation())
sketch20.addGeometry(Part.LineSegment(App.Vector(0.9, 2.6, 0), App.Vector(0.9, 1.9, 0)), False)
sketch20.addGeometry(Part.LineSegment(App.Vector(0.9, 1.9, 0), App.Vector(2.6, 1.9, 0)), False)
sketch20.addGeometry(Part.LineSegment(App.Vector(2.6, 1.9, 0), App.Vector(2.6, 2.6, 0)), False)
sketch20.addGeometry(Part.LineSegment(App.Vector(2.6, 2.6, 0), App.Vector(0.9, 2.6, 0)), False)
sketch20.addConstraint(Sketcher.Constraint("Coincident", 0, 2, 1, 1))
sketch20.addConstraint(Sketcher.Constraint("Coincident", 1, 2, 2, 1))
sketch20.addConstraint(Sketcher.Constraint("Coincident", 2, 2, 3, 1))
sketch20.addConstraint(Sketcher.Constraint("Coincident", 3, 2, 0, 1))
sketch20.addConstraint(Sketcher.Constraint("Vertical", 0))
sketch20.addConstraint(Sketcher.Constraint("Horizontal", 1))
sketch20.addConstraint(Sketcher.Constraint("Vertical", 2))
sketch20.addConstraint(Sketcher.Constraint("Horizontal", 3))
sketch20.addConstraint(Sketcher.Constraint("DistanceX", 1, 1, 1, 2, Q("1.7 mm")))
sketch20.addConstraint(Sketcher.Constraint("DistanceY", 0, 2, 0, 1, Q("0.65 mm")))
sketch20.addConstraint(Sketcher.Constraint("DistanceX", -1, 1, 0, 2, Q("0.9 mm")))
sketch20.addConstraint(Sketcher.Constraint("DistanceY", -1, 1, 2, 2, Q("2.6 mm")))
pocket13 = doc.addObject("PartDesign::Pocket", "Pocket012")
body.addObject(pocket13)
pocket13.Profile = sketch20
pocket13.Length = 1
pocket13.Reversed = True
doc.recompute()

linearpattern4 = doc.addObject("PartDesign::LinearPattern", "LinearPattern003")
body.addObject(linearpattern4)
linearpattern4.Originals = [pocket13]
linearpattern4.Direction = (doc.X_Axis, [""])
linearpattern4.Mode = "offset"
linearpattern4.Offset = 4.6
linearpattern4.Occurrences = 2
body.Tip = linearpattern4

sketch21 = doc.addObject("Sketcher::SketchObject", "Sketch020")
body.addObject(sketch21)
sketch21.AttachmentSupport = (doc.XY_Plane, [""])
sketch21.MapMode = "FlatFace"
sketch21.AttachmentOffset = App.Placement(App.Vector(0, 0, 0.7), App.Rotation())
sketch21.addGeometry(Part.LineSegment(App.Vector(3.7, 1.7, 0), App.Vector(3.7, 0, 0)), False)
sketch21.addGeometry(Part.LineSegment(App.Vector(3.7, 0, 0), App.Vector(4.3, 0, 0)), False)
sketch21.addGeometry(Part.LineSegment(App.Vector(4.3, 0, 0), App.Vector(4.3, 1.7, 0)), False)
sketch21.addGeometry(Part.LineSegment(App.Vector(4.3, 1.7, 0), App.Vector(3.7, 1.7, 0)), False)
sketch21.addConstraint(Sketcher.Constraint("Coincident", 0, 2, 1, 1))
sketch21.addConstraint(Sketcher.Constraint("Coincident", 1, 2, 2, 1))
sketch21.addConstraint(Sketcher.Constraint("Coincident", 2, 2, 3, 1))
sketch21.addConstraint(Sketcher.Constraint("Coincident", 3, 2, 0, 1))
sketch21.addConstraint(Sketcher.Constraint("Vertical", 0))
sketch21.addConstraint(Sketcher.Constraint("Horizontal", 1))
sketch21.addConstraint(Sketcher.Constraint("Vertical", 2))
sketch21.addConstraint(Sketcher.Constraint("Horizontal", 3))
sketch21.addConstraint(Sketcher.Constraint("PointOnObject", 0, 2, -1))
sketch21.addConstraint(Sketcher.Constraint("DistanceY", 0, 2, 0, 1, Q("1.7 mm")))
sketch21.addConstraint(Sketcher.Constraint("DistanceX", 1, 1, 1, 2, Q("0.65 mm")))
sketch21.addConstraint(Sketcher.Constraint("DistanceX", -1, 1, 0, 2, Q("3.7 mm")))
pocket14 = doc.addObject("PartDesign::Pocket", "Pocket013")
body.addObject(pocket14)
pocket14.Profile = sketch21
pocket14.Length = 0.2
pocket14.Reversed = True
doc.recompute()

fillet = doc.addObject("PartDesign::Fillet", "Fillet")
body.addObject(fillet)
fillet.Base = (pocket14, edges_at(pocket14, [(3.3, 0, -0.1)]))
fillet.Radius = 0.2
doc.recompute()

fillet2 = doc.addObject("PartDesign::Fillet", "Fillet001")
body.addObject(fillet2)
fillet2.Base = (fillet, edges_at(fillet, [(3.3, -21, -0.1)]))
fillet2.Radius = 0.2
body2 = doc.addObject("PartDesign::Body", "Body001")

sketch22 = doc.addObject("Sketcher::SketchObject", "Sketch021")
body2.addObject(sketch22)
sketch22.AttachmentSupport = (doc.getObject("XY_Plane001"), [""])
sketch22.MapMode = "FlatFace"
sketch22.AttachmentOffset = App.Placement(App.Vector(0, 0, -3.8), App.Rotation())
sketch22.addGeometry(Part.LineSegment(App.Vector(-0.8, 3.9, 0), App.Vector(-0.8, -0.8, 0)), False)
sketch22.addGeometry(Part.LineSegment(App.Vector(-0.8, -0.8, 0), App.Vector(8.4, -0.8, 0)), False)
sketch22.addGeometry(Part.LineSegment(App.Vector(8.4, -0.8, 0), App.Vector(8.4, 3.9, 0)), False)
sketch22.addGeometry(Part.LineSegment(App.Vector(8.4, 3.9, 0), App.Vector(-0.8, 3.9, 0)), False)
sketch22.addConstraint(Sketcher.Constraint("Coincident", 0, 2, 1, 1))
sketch22.addConstraint(Sketcher.Constraint("Coincident", 1, 2, 2, 1))
sketch22.addConstraint(Sketcher.Constraint("Coincident", 2, 2, 3, 1))
sketch22.addConstraint(Sketcher.Constraint("Coincident", 3, 2, 0, 1))
sketch22.addConstraint(Sketcher.Constraint("Vertical", 0))
sketch22.addConstraint(Sketcher.Constraint("Horizontal", 1))
sketch22.addConstraint(Sketcher.Constraint("Vertical", 2))
sketch22.addConstraint(Sketcher.Constraint("Horizontal", 3))
sketch22.addConstraint(Sketcher.Constraint("DistanceX", 1, 1, 1, 2, Q("9.2 mm")))
sketch22.addConstraint(Sketcher.Constraint("DistanceY", 0, 2, 0, 1, Q("4.7 mm")))
sketch22.addConstraint(Sketcher.Constraint("DistanceX", 0, 2, -1, 1, Q("0.8 mm")))
sketch22.addConstraint(Sketcher.Constraint("DistanceY", 0, 2, -1, 1, Q("0.8 mm")))
pad5 = doc.addObject("PartDesign::Pad", "Pad004")
body2.addObject(pad5)
pad5.Profile = sketch22
pad5.Length = 0.3

sketch23 = doc.addObject("Sketcher::SketchObject", "Sketch022")
body2.addObject(sketch23)
sketch23.AttachmentSupport = (doc.getObject("XY_Plane001"), [""])
sketch23.MapMode = "FlatFace"
sketch23.AttachmentOffset = App.Placement(App.Vector(0, 0, -3.6), App.Rotation())
sketch23.addGeometry(Part.LineSegment(App.Vector(0.1, 2.9, 0), App.Vector(0.1, 0.2, 0)), False)
sketch23.addGeometry(Part.LineSegment(App.Vector(0.1, 0.2, 0), App.Vector(7.5, 0.2, 0)), False)
sketch23.addGeometry(Part.LineSegment(App.Vector(7.5, 0.2, 0), App.Vector(7.5, 2.9, 0)), False)
sketch23.addGeometry(Part.LineSegment(App.Vector(7.5, 2.9, 0), App.Vector(0.1, 2.9, 0)), False)
sketch23.addConstraint(Sketcher.Constraint("Coincident", 0, 2, 1, 1))
sketch23.addConstraint(Sketcher.Constraint("Coincident", 1, 2, 2, 1))
sketch23.addConstraint(Sketcher.Constraint("Coincident", 2, 2, 3, 1))
sketch23.addConstraint(Sketcher.Constraint("Coincident", 3, 2, 0, 1))
sketch23.addConstraint(Sketcher.Constraint("Vertical", 0))
sketch23.addConstraint(Sketcher.Constraint("Horizontal", 1))
sketch23.addConstraint(Sketcher.Constraint("Vertical", 2))
sketch23.addConstraint(Sketcher.Constraint("Horizontal", 3))
sketch23.addConstraint(Sketcher.Constraint("DistanceX", 1, 1, 1, 2, Q("7.5 mm")))
sketch23.addConstraint(Sketcher.Constraint("DistanceY", 0, 2, 0, 1, Q("2.7 mm")))
sketch23.addConstraint(Sketcher.Constraint("DistanceY", -1, 1, 0, 2, Q("0.2 mm")))
sketch23.addConstraint(Sketcher.Constraint("DistanceX", -1, 1, 0, 2, Q("0.05 mm")))
pad6 = doc.addObject("PartDesign::Pad", "Pad005")
body2.addObject(pad6)
pad6.Profile = sketch23
pad6.Length = 0.6

doc.recompute()
